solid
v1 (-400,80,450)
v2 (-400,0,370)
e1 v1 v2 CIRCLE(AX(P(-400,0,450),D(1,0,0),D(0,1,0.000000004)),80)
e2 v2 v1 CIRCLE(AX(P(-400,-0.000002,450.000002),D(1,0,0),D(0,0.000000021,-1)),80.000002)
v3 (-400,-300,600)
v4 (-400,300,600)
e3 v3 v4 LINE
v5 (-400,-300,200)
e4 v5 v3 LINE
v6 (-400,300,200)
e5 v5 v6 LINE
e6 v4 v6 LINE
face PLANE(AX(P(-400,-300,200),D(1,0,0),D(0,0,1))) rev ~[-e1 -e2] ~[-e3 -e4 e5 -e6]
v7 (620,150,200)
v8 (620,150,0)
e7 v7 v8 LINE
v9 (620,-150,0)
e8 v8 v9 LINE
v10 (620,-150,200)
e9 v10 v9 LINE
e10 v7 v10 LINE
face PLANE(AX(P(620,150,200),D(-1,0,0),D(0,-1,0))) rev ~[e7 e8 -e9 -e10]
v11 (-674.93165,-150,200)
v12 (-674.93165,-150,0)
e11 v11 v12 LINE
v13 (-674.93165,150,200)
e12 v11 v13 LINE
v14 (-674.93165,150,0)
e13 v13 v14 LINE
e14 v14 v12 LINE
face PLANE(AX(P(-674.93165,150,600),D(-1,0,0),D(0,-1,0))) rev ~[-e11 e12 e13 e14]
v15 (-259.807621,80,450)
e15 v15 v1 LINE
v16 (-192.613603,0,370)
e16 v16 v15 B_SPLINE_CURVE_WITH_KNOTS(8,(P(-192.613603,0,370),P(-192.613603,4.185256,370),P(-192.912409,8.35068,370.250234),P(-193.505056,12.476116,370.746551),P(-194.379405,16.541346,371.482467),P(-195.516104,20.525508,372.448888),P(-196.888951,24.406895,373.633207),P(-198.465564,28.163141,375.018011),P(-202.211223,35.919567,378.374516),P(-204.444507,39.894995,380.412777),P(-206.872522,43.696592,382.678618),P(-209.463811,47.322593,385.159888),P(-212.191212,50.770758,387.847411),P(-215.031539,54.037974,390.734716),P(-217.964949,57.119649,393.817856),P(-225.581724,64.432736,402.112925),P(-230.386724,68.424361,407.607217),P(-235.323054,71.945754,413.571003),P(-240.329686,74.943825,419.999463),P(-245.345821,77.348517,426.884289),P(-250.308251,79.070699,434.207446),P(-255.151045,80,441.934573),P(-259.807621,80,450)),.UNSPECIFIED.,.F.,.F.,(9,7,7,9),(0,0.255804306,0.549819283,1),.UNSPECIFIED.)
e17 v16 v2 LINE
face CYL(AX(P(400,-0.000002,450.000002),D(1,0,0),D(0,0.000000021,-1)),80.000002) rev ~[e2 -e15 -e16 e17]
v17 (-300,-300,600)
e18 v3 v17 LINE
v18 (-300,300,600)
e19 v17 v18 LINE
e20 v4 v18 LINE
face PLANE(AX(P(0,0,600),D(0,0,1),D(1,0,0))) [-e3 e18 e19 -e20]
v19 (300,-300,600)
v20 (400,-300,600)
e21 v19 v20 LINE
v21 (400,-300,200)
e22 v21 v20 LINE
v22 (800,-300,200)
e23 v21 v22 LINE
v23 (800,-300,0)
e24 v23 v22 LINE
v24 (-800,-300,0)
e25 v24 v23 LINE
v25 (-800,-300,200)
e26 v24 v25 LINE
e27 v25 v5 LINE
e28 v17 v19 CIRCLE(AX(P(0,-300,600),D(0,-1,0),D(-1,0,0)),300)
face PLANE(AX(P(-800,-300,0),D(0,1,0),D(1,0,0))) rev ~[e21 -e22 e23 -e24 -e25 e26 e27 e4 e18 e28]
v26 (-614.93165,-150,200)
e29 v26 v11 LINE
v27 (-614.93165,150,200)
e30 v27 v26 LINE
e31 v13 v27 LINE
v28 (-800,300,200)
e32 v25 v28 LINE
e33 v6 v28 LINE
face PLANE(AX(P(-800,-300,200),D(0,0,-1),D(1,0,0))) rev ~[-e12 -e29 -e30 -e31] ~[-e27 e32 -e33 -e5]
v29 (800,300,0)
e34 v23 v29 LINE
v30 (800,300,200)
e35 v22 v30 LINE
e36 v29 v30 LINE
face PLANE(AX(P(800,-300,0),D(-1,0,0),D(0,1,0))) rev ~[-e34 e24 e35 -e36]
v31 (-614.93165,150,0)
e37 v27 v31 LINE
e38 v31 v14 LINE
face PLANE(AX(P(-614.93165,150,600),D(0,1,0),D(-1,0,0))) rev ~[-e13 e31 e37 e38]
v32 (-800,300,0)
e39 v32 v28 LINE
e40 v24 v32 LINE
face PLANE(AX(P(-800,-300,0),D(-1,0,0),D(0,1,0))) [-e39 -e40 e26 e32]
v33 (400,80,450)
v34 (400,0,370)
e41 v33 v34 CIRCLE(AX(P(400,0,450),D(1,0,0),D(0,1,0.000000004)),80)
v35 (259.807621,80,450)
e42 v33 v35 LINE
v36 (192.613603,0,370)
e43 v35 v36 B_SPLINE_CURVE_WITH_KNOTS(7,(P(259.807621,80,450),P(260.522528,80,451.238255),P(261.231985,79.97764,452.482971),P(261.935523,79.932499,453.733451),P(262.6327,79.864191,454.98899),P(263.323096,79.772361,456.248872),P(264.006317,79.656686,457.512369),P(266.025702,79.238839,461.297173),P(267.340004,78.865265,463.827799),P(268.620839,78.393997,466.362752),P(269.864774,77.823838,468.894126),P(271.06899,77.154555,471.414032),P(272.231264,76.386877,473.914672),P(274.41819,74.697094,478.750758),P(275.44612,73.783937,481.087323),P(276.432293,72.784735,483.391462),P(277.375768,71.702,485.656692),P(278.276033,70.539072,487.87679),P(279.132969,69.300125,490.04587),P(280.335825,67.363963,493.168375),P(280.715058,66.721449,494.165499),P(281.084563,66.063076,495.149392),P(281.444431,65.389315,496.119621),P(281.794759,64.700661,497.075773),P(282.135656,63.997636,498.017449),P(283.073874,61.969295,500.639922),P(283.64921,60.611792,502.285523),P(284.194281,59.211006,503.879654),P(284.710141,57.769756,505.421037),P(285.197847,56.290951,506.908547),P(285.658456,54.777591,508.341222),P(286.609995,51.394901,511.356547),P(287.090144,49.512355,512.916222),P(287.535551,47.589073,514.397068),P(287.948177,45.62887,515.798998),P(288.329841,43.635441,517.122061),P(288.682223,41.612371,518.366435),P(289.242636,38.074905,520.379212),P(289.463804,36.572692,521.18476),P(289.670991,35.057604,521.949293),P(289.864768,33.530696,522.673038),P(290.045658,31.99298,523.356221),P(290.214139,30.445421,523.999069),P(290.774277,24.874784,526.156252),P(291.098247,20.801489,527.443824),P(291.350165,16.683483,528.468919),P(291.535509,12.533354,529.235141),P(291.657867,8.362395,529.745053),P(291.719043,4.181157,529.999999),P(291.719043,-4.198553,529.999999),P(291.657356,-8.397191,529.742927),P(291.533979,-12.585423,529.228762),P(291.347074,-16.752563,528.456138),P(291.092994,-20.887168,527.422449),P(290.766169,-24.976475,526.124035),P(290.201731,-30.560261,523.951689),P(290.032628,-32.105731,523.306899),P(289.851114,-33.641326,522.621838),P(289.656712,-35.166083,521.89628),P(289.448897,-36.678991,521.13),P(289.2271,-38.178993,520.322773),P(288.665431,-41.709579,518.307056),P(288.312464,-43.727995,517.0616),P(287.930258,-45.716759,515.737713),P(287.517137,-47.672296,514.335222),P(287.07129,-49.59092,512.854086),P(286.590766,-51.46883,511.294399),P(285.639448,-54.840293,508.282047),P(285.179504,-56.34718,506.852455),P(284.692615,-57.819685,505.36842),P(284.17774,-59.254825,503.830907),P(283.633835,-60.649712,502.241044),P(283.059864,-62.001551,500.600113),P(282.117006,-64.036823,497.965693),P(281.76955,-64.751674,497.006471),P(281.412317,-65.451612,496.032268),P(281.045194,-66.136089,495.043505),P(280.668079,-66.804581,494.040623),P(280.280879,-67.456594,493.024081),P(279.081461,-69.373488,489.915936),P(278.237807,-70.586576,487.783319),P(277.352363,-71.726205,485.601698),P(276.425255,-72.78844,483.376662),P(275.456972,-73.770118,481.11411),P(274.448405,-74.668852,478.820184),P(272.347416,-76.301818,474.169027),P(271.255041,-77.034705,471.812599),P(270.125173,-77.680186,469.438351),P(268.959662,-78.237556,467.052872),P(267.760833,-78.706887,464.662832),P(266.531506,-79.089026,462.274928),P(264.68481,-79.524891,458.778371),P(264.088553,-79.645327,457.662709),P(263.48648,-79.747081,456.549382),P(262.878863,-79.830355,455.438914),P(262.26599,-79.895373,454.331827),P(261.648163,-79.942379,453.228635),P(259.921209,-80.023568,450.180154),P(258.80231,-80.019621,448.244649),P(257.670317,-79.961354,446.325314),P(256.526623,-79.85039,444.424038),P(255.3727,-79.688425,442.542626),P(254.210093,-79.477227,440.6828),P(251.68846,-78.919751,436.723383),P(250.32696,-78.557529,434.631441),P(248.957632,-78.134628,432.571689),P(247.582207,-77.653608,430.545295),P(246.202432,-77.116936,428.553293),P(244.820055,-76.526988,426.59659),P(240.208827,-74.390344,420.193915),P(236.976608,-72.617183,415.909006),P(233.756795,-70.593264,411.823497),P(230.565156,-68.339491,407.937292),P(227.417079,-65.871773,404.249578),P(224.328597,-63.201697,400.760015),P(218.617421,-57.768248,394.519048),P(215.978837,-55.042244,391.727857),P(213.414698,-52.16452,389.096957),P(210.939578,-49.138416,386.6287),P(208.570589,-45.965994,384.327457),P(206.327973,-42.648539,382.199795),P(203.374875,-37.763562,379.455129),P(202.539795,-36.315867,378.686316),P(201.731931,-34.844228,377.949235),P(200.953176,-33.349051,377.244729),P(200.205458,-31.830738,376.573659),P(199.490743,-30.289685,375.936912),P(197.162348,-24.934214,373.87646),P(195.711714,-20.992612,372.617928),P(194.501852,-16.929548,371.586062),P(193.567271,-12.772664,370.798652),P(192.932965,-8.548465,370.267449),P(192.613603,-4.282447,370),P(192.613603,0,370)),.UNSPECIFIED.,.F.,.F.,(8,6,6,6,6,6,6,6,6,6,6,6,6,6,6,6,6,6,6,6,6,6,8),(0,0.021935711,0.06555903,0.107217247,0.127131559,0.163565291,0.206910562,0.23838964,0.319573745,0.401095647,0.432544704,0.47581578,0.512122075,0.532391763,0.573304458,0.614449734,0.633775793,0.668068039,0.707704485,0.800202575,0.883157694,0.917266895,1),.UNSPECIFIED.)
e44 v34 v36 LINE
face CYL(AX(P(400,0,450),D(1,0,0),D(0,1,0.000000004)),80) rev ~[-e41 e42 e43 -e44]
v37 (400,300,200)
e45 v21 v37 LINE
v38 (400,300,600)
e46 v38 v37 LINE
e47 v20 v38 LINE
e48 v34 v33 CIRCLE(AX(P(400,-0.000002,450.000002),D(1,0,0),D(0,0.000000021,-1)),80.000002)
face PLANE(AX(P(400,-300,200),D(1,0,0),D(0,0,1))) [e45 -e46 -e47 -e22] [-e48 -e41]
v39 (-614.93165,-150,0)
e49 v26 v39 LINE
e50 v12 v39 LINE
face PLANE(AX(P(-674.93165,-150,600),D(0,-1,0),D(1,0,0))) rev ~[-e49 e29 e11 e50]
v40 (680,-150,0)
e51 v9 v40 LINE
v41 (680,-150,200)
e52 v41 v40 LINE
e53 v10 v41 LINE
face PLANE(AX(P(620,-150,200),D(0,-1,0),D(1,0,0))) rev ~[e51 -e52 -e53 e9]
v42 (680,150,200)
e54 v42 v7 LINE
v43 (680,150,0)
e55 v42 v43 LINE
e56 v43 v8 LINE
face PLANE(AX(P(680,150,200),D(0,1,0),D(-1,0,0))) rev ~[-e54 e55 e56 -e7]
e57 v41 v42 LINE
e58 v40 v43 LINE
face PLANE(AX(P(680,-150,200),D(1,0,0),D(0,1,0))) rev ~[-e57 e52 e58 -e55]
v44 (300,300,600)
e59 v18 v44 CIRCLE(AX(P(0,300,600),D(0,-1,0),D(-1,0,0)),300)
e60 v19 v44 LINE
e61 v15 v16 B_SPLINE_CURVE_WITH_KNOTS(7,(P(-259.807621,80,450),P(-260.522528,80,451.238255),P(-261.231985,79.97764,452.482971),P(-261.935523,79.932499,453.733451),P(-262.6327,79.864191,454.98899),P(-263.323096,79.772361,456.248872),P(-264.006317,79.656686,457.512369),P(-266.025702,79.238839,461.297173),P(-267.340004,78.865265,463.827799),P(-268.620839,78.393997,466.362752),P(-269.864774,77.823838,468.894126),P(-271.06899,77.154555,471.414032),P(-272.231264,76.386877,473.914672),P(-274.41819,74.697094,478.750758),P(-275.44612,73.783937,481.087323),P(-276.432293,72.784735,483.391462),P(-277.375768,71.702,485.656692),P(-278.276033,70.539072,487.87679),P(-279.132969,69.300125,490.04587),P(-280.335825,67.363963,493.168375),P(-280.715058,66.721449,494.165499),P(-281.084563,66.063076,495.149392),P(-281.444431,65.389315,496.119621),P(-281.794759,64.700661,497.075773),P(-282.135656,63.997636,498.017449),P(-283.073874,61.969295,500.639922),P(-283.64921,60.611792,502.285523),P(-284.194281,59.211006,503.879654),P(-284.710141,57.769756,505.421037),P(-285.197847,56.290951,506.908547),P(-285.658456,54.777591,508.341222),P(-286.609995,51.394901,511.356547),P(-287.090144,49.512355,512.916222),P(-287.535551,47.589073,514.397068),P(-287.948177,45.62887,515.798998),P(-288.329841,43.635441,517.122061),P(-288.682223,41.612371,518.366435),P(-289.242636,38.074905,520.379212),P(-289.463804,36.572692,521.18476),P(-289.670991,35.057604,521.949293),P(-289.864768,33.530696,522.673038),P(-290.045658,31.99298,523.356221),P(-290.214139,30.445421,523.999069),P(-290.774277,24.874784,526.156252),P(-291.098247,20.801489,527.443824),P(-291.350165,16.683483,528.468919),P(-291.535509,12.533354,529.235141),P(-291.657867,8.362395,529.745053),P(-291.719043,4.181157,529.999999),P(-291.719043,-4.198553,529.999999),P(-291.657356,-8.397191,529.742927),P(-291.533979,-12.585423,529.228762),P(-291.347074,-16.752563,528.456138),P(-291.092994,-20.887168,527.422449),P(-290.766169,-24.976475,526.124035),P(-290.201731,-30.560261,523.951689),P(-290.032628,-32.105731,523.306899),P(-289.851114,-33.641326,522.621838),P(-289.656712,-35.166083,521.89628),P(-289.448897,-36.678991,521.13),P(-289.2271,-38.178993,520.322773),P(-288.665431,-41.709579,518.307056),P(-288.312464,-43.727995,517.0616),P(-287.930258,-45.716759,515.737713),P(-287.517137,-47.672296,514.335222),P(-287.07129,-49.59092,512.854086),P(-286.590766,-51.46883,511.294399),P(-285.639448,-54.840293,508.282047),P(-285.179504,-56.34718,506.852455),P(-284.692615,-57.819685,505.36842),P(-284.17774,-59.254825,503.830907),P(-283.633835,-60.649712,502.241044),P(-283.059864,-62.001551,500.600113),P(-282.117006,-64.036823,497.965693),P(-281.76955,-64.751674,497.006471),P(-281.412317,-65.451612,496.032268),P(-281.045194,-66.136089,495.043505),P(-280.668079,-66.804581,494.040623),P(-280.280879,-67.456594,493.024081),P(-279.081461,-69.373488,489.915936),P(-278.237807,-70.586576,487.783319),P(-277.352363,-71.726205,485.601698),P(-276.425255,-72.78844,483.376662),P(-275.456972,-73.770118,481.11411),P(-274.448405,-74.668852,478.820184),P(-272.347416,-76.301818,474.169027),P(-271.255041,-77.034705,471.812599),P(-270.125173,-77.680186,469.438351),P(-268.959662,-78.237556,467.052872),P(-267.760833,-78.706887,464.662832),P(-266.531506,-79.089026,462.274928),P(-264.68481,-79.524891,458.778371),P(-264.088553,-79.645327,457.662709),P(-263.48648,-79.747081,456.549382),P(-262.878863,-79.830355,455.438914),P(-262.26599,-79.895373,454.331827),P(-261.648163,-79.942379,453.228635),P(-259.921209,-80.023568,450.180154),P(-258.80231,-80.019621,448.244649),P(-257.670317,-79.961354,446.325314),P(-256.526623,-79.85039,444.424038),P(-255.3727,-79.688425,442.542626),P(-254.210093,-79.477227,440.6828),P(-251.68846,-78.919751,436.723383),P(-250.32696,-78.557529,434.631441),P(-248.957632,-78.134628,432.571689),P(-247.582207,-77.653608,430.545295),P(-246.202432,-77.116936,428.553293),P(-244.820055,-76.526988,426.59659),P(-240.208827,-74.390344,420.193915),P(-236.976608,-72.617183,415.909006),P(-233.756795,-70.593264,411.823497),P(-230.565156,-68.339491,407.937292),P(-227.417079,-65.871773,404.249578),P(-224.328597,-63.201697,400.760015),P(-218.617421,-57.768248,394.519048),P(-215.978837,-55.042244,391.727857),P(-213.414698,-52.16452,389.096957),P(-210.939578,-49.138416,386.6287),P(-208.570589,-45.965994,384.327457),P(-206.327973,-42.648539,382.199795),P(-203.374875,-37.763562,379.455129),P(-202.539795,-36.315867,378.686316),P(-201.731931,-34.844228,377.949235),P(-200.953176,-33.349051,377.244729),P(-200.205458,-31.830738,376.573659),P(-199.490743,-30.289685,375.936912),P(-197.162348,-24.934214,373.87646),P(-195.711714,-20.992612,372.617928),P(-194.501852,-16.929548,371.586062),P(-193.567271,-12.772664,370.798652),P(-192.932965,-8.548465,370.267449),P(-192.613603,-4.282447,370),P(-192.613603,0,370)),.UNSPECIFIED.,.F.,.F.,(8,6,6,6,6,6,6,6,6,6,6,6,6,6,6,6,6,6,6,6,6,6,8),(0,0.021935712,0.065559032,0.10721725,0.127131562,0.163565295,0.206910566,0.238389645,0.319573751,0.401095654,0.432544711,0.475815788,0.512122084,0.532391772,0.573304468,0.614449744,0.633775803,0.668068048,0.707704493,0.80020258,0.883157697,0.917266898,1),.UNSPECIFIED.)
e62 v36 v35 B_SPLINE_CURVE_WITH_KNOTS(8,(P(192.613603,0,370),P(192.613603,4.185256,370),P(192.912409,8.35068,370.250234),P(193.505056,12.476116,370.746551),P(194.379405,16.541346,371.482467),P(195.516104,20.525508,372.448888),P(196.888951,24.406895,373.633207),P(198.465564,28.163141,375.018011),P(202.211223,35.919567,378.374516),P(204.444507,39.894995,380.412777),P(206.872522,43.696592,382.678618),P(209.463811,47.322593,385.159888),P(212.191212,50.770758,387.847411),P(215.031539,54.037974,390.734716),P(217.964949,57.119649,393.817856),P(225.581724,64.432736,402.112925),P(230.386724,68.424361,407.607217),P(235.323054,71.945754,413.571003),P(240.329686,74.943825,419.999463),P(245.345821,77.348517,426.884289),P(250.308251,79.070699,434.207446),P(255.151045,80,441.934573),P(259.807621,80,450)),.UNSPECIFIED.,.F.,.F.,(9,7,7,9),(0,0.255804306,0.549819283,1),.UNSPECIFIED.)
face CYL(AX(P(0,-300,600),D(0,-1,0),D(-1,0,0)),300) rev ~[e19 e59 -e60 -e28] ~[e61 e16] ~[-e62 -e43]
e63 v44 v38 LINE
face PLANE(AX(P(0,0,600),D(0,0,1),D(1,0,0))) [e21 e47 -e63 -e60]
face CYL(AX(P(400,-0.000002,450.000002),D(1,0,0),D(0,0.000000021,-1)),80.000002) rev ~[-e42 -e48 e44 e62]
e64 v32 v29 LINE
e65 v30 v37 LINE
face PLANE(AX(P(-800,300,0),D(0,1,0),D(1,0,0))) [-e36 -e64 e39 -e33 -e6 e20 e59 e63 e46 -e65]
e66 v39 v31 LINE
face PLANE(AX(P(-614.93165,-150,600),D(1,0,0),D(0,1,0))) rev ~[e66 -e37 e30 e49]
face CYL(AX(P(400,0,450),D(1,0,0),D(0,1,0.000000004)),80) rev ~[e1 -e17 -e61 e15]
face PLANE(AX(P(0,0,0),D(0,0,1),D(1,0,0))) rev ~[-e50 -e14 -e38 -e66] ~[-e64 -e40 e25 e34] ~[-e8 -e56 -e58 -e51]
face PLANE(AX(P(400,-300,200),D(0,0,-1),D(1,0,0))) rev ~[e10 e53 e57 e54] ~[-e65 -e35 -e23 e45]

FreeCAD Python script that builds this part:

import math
import FreeCAD as App
import Part
import Sketcher

doc = App.newDocument("Part")
params = doc.addObject("Spreadsheet::Sheet", "Params")
for row, (alias, value) in enumerate([
    ("sketch1_width", "1600 mm"),
    ("sketch1_height", "600 mm"),
    ("pad1_length", "600 mm"),
    ("sketch2_radius", "300 mm"),
    ("sketch3_width", "400 mm"),
    ("sketch4_width", "400 mm"),
    ("sketch5_radius", "80 mm"),
    ("pocket4_length", "1400 mm"),
    ("sketch6_width", "60 mm"),
    ("sketch6_height", "300 mm"),
    ("sketch7_width", "60 mm"),
    ("sketch7_height", "300 mm"),
], start=1):
    params.set(f"A{row}", alias)
    params.set(f"B{row}", "=" + value)
    params.setAlias(f"B{row}", alias)

body = doc.addObject("PartDesign::Body", "Body")

# Sketch on XY plane
sketch1 = doc.addObject("Sketcher::SketchObject", "Sketch")
body.addObject(sketch1)
sketch1.AttachmentSupport = (doc.XY_Plane, [""])
sketch1.MapMode = "FlatFace"
sketch1.addGeometry([
    Part.LineSegment(App.Vector(-800, 300, 0), App.Vector(-800, -300, 0)),
    Part.LineSegment(App.Vector(-800, -300, 0), App.Vector(800, -300, 0)),
    Part.LineSegment(App.Vector(800, -300, 0), App.Vector(800, 300, 0)),
    Part.LineSegment(App.Vector(800, 300, 0), App.Vector(-800, 300, 0)),
], False)
sketch1.addConstraint([
    Sketcher.Constraint("Coincident", 0, 2, 1, 1),
    Sketcher.Constraint("Coincident", 1, 2, 2, 1),
    Sketcher.Constraint("Coincident", 2, 2, 3, 1),
    Sketcher.Constraint("Coincident", 3, 2, 0, 1),
    Sketcher.Constraint("Vertical", 0),
    Sketcher.Constraint("Horizontal", 1),
    Sketcher.Constraint("Vertical", 2),
    Sketcher.Constraint("Horizontal", 3),
    Sketcher.Constraint("Symmetric", 0, 2, 2, 2, -1, 1),
    Sketcher.Constraint("DistanceX", 1, 1, 1, 2, 1600.0),
    Sketcher.Constraint("DistanceY", 0, 2, 0, 1, 600.0),
])
sketch1.setExpression("Constraints[9]", "Params.sketch1_width")
sketch1.setExpression("Constraints[10]", "Params.sketch1_height")
pad1 = doc.addObject("PartDesign::Pad", "Pad")
body.addObject(pad1)
pad1.Profile = sketch1
pad1.setExpression("Length", "Params.pad1_length")

# Sketch on XZ plane
sketch2 = doc.addObject("Sketcher::SketchObject", "Sketch001")
body.addObject(sketch2)
sketch2.AttachmentSupport = (doc.XZ_Plane, [""])
sketch2.MapMode = "FlatFace"
sketch2.AttachmentOffset = App.Placement(App.Vector(0, 0, 300), App.Rotation())
sketch2.addGeometry([
    Part.ArcOfCircle(Part.Circle(App.Vector(0, 600, 0), App.Vector(0, 0, 1), 300), math.radians(180), math.radians(360)),
    Part.LineSegment(App.Vector(300, 600, 0), App.Vector(-300, 600, 0)),
], False)
sketch2.addConstraint([
    Sketcher.Constraint("Coincident", 0, 1, 1, 2),
    Sketcher.Constraint("Coincident", 1, 1, 0, 2),
    Sketcher.Constraint("Horizontal", 1),
    Sketcher.Constraint("PointOnObject", 0, 3, -2),
    Sketcher.Constraint("Radius", 0, 300.0),
    Sketcher.Constraint("DistanceY", -1, 1, 0, 3, 600.0),
    Sketcher.Constraint("DistanceY", -1, 1, 0, 1, 600.0),
])
sketch2.setExpression("Constraints[4]", "Params.sketch2_radius")
pocket1 = doc.addObject("PartDesign::Pocket", "Pocket")
body.addObject(pocket1)
pocket1.Profile = sketch2
pocket1.Type = "ThroughAll"

# Sketch on XZ plane
sketch3 = doc.addObject("Sketcher::SketchObject", "Sketch002")
body.addObject(sketch3)
sketch3.AttachmentSupport = (doc.XZ_Plane, [""])
sketch3.MapMode = "FlatFace"
sketch3.AttachmentOffset = App.Placement(App.Vector(0, 0, 300), App.Rotation())
sketch3.addGeometry([
    Part.LineSegment(App.Vector(400, 600, 0), App.Vector(400, 200, 0)),
    Part.LineSegment(App.Vector(400, 200, 0), App.Vector(800, 200, 0)),
    Part.LineSegment(App.Vector(800, 200, 0), App.Vector(800, 600, 0)),
    Part.LineSegment(App.Vector(800, 600, 0), App.Vector(400, 600, 0)),
], False)
sketch3.addConstraint([
    Sketcher.Constraint("Coincident", 0, 2, 1, 1),
    Sketcher.Constraint("Coincident", 1, 2, 2, 1),
    Sketcher.Constraint("Coincident", 2, 2, 3, 1),
    Sketcher.Constraint("Coincident", 3, 2, 0, 1),
    Sketcher.Constraint("Vertical", 0),
    Sketcher.Constraint("Horizontal", 1),
    Sketcher.Constraint("Vertical", 2),
    Sketcher.Constraint("Horizontal", 3),
    Sketcher.Constraint("Equal", 3, 0),
    Sketcher.Constraint("DistanceX", 1, 1, 1, 2, 400.0),
    Sketcher.Constraint("DistanceX", -1, 1, 0, 2, 400.0),
    Sketcher.Constraint("DistanceY", -1, 1, 0, 2, 200.0),
])
sketch3.setExpression("Constraints[9]", "Params.sketch3_width")
pocket2 = doc.addObject("PartDesign::Pocket", "Pocket001")
body.addObject(pocket2)
pocket2.Profile = sketch3
pocket2.Type = "ThroughAll"

# Sketch on XZ plane
sketch4 = doc.addObject("Sketcher::SketchObject", "Sketch003")
body.addObject(sketch4)
sketch4.AttachmentSupport = (doc.XZ_Plane, [""])
sketch4.MapMode = "FlatFace"
sketch4.AttachmentOffset = App.Placement(App.Vector(0, 0, 300), App.Rotation())
sketch4.addGeometry([
    Part.LineSegment(App.Vector(-800, 600, 0), App.Vector(-800, 200, 0)),
    Part.LineSegment(App.Vector(-800, 200, 0), App.Vector(-400, 200, 0)),
    Part.LineSegment(App.Vector(-400, 200, 0), App.Vector(-400, 600, 0)),
    Part.LineSegment(App.Vector(-400, 600, 0), App.Vector(-800, 600, 0)),
], False)
sketch4.addConstraint([
    Sketcher.Constraint("Coincident", 0, 2, 1, 1),
    Sketcher.Constraint("Coincident", 1, 2, 2, 1),
    Sketcher.Constraint("Coincident", 2, 2, 3, 1),
    Sketcher.Constraint("Coincident", 3, 2, 0, 1),
    Sketcher.Constraint("Vertical", 0),
    Sketcher.Constraint("Horizontal", 1),
    Sketcher.Constraint("Vertical", 2),
    Sketcher.Constraint("Horizontal", 3),
    Sketcher.Constraint("Equal", 3, 0),
    Sketcher.Constraint("DistanceX", 1, 1, 1, 2, 400.0),
    Sketcher.Constraint("DistanceX", 0, 2, -1, 1, 800.0),
    Sketcher.Constraint("DistanceY", -1, 1, 0, 2, 200.0),
])
sketch4.setExpression("Constraints[9]", "Params.sketch4_width")
pocket3 = doc.addObject("PartDesign::Pocket", "Pocket002")
body.addObject(pocket3)
pocket3.Profile = sketch4
pocket3.Type = "ThroughAll"

# Sketch on YZ plane
sketch5 = doc.addObject("Sketcher::SketchObject", "Sketch004")
body.addObject(sketch5)
sketch5.AttachmentSupport = (doc.YZ_Plane, [""])
sketch5.MapMode = "FlatFace"
sketch5.AttachmentOffset = App.Placement(App.Vector(0, 0, 400), App.Rotation())
sketch5.addGeometry([
    Part.ArcOfCircle(Part.Circle(App.Vector(0, 450, 0), App.Vector(0, 0, 1), 80), math.radians(0), math.radians(270)),
    Part.ArcOfCircle(Part.Circle(App.Vector(0, 450, 0), App.Vector(0, 0, 1), 80), math.radians(-90), math.radians(0)),
], False)
sketch5.addConstraint([
    Sketcher.Constraint("Tangent", 0, 1, 1, 2),
    Sketcher.Constraint("Coincident", 1, 1, 0, 2),
    Sketcher.Constraint("PointOnObject", 0, 3, -2),
    Sketcher.Constraint("PointOnObject", 1, 1, -2),
    Sketcher.Constraint("Horizontal", 1, 3, 0, 1),
    Sketcher.Constraint("Radius", 0, 80.0),
    Sketcher.Constraint("DistanceY", -1, 1, 0, 3, 450.0),
])
sketch5.setExpression("Constraints[5]", "Params.sketch5_radius")
pocket4 = doc.addObject("PartDesign::Pocket", "Pocket003")
body.addObject(pocket4)
pocket4.Profile = sketch5
pocket4.setExpression("Length", "Params.pocket4_length")

# Sketch on XY plane
sketch6 = doc.addObject("Sketcher::SketchObject", "Sketch005")
body.addObject(sketch6)
sketch6.AttachmentSupport = (doc.XY_Plane, [""])
sketch6.MapMode = "FlatFace"
sketch6.AttachmentOffset = App.Placement(App.Vector(0, 0, 200), App.Rotation())
sketch6.addGeometry([
    Part.LineSegment(App.Vector(680, -150, 0), App.Vector(680, 150, 0)),
    Part.LineSegment(App.Vector(680, 150, 0), App.Vector(620, 150, 0)),
    Part.LineSegment(App.Vector(620, 150, 0), App.Vector(620, -150, 0)),
    Part.LineSegment(App.Vector(620, -150, 0), App.Vector(680, -150, 0)),
], False)
sketch6.addConstraint([
    Sketcher.Constraint("Coincident", 0, 2, 1, 1),
    Sketcher.Constraint("Coincident", 1, 2, 2, 1),
    Sketcher.Constraint("Coincident", 2, 2, 3, 1),
    Sketcher.Constraint("Coincident", 3, 2, 0, 1),
    Sketcher.Constraint("Vertical", 0),
    Sketcher.Constraint("Horizontal", 1),
    Sketcher.Constraint("Vertical", 2),
    Sketcher.Constraint("Horizontal", 3),
    Sketcher.Constraint("DistanceX", 1, 2, 1, 1, 60.0),
    Sketcher.Constraint("DistanceY", 0, 1, 0, 2, 300.0),
    Sketcher.Constraint("DistanceX", -1, 1, 0, 2, 680.0),
    Sketcher.Constraint("DistanceY", -1, 1, 0, 2, 150.0),
])
sketch6.setExpression("Constraints[8]", "Params.sketch6_width")
sketch6.setExpression("Constraints[9]", "Params.sketch6_height")
pocket5 = doc.addObject("PartDesign::Pocket", "Pocket004")
body.addObject(pocket5)
pocket5.Profile = sketch6
pocket5.Type = "ThroughAll"

# Sketch on XY plane
sketch7 = doc.addObject("Sketcher::SketchObject", "Sketch006")
body.addObject(sketch7)
sketch7.AttachmentSupport = (doc.XY_Plane, [""])
sketch7.MapMode = "FlatFace"
sketch7.AttachmentOffset = App.Placement(App.Vector(0, 0, 600), App.Rotation())
sketch7.addGeometry([
    Part.LineSegment(App.Vector(-675, -150, 0), App.Vector(-615, -150, 0)),
    Part.LineSegment(App.Vector(-615, -150, 0), App.Vector(-615, 150, 0)),
    Part.LineSegment(App.Vector(-615, 150, 0), App.Vector(-675, 150, 0)),
    Part.LineSegment(App.Vector(-675, 150, 0), App.Vector(-675, -150, 0)),
], False)
sketch7.addConstraint([
    Sketcher.Constraint("Coincident", 0, 2, 1, 1),
    Sketcher.Constraint("Coincident", 1, 2, 2, 1),
    Sketcher.Constraint("Coincident", 2, 2, 3, 1),
    Sketcher.Constraint("Coincident", 3, 2, 0, 1),
    Sketcher.Constraint("Horizontal", 0),
    Sketcher.Constraint("Vertical", 1),
    Sketcher.Constraint("Horizontal", 2),
    Sketcher.Constraint("Vertical", 3),
    Sketcher.Constraint("DistanceX", 0, 1, 0, 2, 60.0),
    Sketcher.Constraint("DistanceY", 1, 1, 1, 2, 300.0),
    Sketcher.Constraint("DistanceY", 0, 2, -1, 1, 150.0),
    Sketcher.Constraint("DistanceX", 0, 2, -1, 1, 614.93165),
])
sketch7.setExpression("Constraints[8]", "Params.sketch7_width")
sketch7.setExpression("Constraints[9]", "Params.sketch7_height")
pocket6 = doc.addObject("PartDesign::Pocket", "Pocket005")
body.addObject(pocket6)
pocket6.Profile = sketch7
pocket6.Type = "ThroughAll"

doc.recompute()
